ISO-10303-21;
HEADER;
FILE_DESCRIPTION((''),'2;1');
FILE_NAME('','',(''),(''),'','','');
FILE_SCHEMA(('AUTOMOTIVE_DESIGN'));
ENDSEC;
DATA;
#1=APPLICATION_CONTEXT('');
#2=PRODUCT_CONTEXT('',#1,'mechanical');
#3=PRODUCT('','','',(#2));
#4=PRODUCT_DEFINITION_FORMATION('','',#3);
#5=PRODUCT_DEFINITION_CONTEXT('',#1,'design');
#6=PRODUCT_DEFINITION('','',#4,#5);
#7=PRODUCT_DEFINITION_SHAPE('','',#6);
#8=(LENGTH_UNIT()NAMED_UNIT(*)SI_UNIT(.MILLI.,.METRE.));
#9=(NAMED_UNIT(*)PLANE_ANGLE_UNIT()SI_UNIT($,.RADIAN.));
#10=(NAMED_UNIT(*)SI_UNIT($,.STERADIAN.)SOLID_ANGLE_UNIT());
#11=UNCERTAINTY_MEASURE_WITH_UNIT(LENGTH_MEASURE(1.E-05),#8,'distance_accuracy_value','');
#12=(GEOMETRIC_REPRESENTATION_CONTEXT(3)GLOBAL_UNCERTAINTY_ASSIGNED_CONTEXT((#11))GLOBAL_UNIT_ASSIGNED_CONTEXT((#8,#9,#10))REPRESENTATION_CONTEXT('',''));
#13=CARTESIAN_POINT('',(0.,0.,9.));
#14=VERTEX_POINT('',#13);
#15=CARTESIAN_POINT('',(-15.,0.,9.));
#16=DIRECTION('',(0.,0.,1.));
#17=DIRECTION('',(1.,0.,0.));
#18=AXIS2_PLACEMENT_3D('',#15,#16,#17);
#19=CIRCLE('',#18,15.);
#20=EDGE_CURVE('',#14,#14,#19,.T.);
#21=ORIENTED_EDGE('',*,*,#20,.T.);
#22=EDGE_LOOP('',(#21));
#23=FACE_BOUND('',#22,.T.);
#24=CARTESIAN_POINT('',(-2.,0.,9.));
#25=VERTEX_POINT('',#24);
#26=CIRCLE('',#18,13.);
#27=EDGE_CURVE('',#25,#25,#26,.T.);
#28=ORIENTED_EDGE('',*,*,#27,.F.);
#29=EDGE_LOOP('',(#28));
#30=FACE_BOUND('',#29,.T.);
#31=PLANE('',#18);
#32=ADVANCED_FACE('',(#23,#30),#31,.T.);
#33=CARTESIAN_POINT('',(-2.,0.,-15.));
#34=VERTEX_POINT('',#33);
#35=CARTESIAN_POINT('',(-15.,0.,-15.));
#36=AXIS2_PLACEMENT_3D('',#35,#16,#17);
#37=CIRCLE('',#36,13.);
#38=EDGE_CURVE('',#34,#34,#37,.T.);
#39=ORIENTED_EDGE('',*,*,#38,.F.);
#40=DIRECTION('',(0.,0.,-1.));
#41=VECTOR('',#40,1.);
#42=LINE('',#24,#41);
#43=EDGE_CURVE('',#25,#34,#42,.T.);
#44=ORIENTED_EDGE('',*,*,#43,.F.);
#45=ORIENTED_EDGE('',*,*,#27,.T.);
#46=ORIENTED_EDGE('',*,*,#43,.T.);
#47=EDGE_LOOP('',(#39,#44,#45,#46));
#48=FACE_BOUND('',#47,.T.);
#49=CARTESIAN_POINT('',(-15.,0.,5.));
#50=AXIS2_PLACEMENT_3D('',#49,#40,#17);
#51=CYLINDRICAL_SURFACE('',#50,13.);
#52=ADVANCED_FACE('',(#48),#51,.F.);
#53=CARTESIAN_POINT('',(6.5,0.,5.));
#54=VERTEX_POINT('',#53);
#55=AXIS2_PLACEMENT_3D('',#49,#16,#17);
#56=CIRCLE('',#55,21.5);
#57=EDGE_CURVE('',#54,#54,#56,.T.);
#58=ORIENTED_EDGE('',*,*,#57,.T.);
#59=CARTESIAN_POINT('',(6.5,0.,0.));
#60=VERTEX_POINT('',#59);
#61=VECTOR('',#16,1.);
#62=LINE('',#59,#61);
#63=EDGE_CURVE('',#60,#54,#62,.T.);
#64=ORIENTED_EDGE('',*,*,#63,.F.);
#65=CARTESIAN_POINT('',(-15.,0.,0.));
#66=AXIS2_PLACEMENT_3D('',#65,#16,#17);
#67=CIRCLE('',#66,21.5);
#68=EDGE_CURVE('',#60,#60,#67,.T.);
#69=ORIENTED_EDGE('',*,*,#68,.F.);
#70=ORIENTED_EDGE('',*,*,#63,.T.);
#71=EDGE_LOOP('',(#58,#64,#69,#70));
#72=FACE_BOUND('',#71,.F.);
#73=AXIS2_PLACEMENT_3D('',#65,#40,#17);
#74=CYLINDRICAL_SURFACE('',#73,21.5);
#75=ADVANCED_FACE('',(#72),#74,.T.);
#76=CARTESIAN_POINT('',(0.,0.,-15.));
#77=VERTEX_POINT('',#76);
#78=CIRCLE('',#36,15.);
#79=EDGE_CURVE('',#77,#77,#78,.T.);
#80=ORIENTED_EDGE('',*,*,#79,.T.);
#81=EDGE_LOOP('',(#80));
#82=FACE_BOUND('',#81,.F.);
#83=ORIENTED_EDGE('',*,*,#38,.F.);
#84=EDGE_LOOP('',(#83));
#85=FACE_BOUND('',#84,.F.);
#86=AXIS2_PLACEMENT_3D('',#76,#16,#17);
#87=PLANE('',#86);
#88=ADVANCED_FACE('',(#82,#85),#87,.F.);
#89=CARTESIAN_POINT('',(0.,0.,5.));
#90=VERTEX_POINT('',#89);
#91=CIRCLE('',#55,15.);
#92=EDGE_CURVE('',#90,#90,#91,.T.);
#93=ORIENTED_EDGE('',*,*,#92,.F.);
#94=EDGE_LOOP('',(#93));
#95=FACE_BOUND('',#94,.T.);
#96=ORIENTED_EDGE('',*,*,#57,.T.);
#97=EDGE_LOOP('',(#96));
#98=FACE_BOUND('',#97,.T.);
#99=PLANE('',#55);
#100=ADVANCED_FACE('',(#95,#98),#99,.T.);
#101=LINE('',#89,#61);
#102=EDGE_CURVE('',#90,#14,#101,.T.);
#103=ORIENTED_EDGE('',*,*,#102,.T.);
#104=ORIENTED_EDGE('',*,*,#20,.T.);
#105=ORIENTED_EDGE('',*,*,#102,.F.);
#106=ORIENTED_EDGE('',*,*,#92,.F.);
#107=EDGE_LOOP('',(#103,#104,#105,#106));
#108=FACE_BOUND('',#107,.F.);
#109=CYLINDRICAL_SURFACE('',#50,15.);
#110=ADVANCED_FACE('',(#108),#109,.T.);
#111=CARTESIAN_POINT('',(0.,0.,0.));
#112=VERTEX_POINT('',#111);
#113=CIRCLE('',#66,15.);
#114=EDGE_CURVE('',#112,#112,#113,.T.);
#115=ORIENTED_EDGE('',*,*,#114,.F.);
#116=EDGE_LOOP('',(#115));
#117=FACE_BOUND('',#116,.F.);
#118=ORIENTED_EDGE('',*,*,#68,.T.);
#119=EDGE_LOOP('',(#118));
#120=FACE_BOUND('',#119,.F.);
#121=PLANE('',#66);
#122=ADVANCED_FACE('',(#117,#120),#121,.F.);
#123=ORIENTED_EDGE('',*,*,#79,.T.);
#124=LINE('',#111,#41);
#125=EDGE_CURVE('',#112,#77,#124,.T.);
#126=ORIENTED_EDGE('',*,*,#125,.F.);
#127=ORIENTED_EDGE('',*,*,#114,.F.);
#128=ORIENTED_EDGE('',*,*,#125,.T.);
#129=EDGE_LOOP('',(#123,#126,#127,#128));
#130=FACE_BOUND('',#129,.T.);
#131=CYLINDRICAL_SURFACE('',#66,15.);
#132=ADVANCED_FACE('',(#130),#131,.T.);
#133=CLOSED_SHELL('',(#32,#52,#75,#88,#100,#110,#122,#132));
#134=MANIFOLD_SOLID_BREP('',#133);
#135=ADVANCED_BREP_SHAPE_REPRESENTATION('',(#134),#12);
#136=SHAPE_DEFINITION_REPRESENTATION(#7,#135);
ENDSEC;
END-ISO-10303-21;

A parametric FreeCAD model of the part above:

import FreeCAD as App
import Part
import Sketcher

V = App.Vector
Q = App.Units.Quantity

doc = App.newDocument("Part")
params = doc.addObject("Spreadsheet::Sheet", "Params")
for row, (alias, value) in enumerate([
    ("sketch1_diameter", "30 mm"),
    ("sketch1_diameter2", "26 mm"),
    ("pad1_length", "15 mm"),
    ("sketch2_diameter", "43 mm"),
    ("sketch2_diameter2", "26 mm"),
    ("pad2_length", "5 mm"),
    ("sketch3_diameter", "30 mm"),
    ("sketch3_diameter2", "26 mm"),
    ("pad3_length", "4 mm"),
], start=1):
    params.set(f"A{row}", alias)
    params.set(f"B{row}", "=" + value)
    params.setAlias(f"B{row}", alias)

body = doc.addObject("PartDesign::Body", "Body")

# Sketch on XY plane
sketch1 = doc.addObject("Sketcher::SketchObject", "Sketch")
body.addObject(sketch1)
sketch1.AttachmentSupport = (doc.XY_Plane, [""])
sketch1.MapMode = "FlatFace"
sketch1.addGeometry([
    Part.Circle(V(-15, 0, 0), V(0, 0, 1), 15),
    Part.Circle(V(-15, 0, 0), V(0, 0, 1), 13),
], False)
sketch1.addConstraint([
    Sketcher.Constraint("Coincident", 1, 3, 0, 3),
    Sketcher.Constraint("PointOnObject", 0, 3, -1),
    Sketcher.Constraint("Diameter", 0, Q("30 mm")),
    Sketcher.Constraint("Diameter", 1, Q("26 mm")),
    Sketcher.Constraint("DistanceX", 0, 3, -1, 1, Q("15 mm")),
])
sketch1.setExpression("Constraints[2]", "Params.sketch1_diameter")
sketch1.setExpression("Constraints[3]", "Params.sketch1_diameter2")
pad1 = doc.addObject("PartDesign::Pad", "Pad")
body.addObject(pad1)
pad1.Profile = sketch1
pad1.setExpression("Length", "Params.pad1_length")
pad1.Reversed = True

# Sketch on XY plane
sketch2 = doc.addObject("Sketcher::SketchObject", "Sketch001")
body.addObject(sketch2)
sketch2.AttachmentSupport = (doc.XY_Plane, [""])
sketch2.MapMode = "FlatFace"
sketch2.addGeometry([
    Part.Circle(V(-15, 0, 0), V(0, 0, 1), 21.5),
    Part.Circle(V(-15, 0, 0), V(0, 0, 1), 13),
], False)
sketch2.addConstraint([
    Sketcher.Constraint("Coincident", 1, 3, 0, 3),
    Sketcher.Constraint("PointOnObject", 0, 3, -1),
    Sketcher.Constraint("Diameter", 0, Q("43 mm")),
    Sketcher.Constraint("Diameter", 1, Q("26 mm")),
    Sketcher.Constraint("DistanceX", 0, 3, -1, 1, Q("15 mm")),
])
sketch2.setExpression("Constraints[2]", "Params.sketch2_diameter")
sketch2.setExpression("Constraints[3]", "Params.sketch2_diameter2")
pad2 = doc.addObject("PartDesign::Pad", "Pad001")
body.addObject(pad2)
pad2.Profile = sketch2
pad2.setExpression("Length", "Params.pad2_length")

# Sketch on XY plane
sketch3 = doc.addObject("Sketcher::SketchObject", "Sketch002")
body.addObject(sketch3)
sketch3.AttachmentSupport = (doc.XY_Plane, [""])
sketch3.MapMode = "FlatFace"
sketch3.AttachmentOffset = App.Placement(V(0, 0, 5), App.Rotation())
sketch3.addGeometry([
    Part.Circle(V(-15, 0, 0), V(0, 0, 1), 15),
    Part.Circle(V(-15, 0, 0), V(0, 0, 1), 13),
], False)
sketch3.addConstraint([
    Sketcher.Constraint("Coincident", 1, 3, 0, 3),
    Sketcher.Constraint("PointOnObject", 0, 3, -1),
    Sketcher.Constraint("Diameter", 0, Q("30 mm")),
    Sketcher.Constraint("Diameter", 1, Q("26 mm")),
    Sketcher.Constraint("DistanceX", 0, 3, -1, 1, Q("15 mm")),
])
sketch3.setExpression("Constraints[2]", "Params.sketch3_diameter")
sketch3.setExpression("Constraints[3]", "Params.sketch3_diameter2")
pad3 = doc.addObject("PartDesign::Pad", "Pad002")
body.addObject(pad3)
pad3.Profile = sketch3
pad3.setExpression("Length", "Params.pad3_length")

doc.recompute()
